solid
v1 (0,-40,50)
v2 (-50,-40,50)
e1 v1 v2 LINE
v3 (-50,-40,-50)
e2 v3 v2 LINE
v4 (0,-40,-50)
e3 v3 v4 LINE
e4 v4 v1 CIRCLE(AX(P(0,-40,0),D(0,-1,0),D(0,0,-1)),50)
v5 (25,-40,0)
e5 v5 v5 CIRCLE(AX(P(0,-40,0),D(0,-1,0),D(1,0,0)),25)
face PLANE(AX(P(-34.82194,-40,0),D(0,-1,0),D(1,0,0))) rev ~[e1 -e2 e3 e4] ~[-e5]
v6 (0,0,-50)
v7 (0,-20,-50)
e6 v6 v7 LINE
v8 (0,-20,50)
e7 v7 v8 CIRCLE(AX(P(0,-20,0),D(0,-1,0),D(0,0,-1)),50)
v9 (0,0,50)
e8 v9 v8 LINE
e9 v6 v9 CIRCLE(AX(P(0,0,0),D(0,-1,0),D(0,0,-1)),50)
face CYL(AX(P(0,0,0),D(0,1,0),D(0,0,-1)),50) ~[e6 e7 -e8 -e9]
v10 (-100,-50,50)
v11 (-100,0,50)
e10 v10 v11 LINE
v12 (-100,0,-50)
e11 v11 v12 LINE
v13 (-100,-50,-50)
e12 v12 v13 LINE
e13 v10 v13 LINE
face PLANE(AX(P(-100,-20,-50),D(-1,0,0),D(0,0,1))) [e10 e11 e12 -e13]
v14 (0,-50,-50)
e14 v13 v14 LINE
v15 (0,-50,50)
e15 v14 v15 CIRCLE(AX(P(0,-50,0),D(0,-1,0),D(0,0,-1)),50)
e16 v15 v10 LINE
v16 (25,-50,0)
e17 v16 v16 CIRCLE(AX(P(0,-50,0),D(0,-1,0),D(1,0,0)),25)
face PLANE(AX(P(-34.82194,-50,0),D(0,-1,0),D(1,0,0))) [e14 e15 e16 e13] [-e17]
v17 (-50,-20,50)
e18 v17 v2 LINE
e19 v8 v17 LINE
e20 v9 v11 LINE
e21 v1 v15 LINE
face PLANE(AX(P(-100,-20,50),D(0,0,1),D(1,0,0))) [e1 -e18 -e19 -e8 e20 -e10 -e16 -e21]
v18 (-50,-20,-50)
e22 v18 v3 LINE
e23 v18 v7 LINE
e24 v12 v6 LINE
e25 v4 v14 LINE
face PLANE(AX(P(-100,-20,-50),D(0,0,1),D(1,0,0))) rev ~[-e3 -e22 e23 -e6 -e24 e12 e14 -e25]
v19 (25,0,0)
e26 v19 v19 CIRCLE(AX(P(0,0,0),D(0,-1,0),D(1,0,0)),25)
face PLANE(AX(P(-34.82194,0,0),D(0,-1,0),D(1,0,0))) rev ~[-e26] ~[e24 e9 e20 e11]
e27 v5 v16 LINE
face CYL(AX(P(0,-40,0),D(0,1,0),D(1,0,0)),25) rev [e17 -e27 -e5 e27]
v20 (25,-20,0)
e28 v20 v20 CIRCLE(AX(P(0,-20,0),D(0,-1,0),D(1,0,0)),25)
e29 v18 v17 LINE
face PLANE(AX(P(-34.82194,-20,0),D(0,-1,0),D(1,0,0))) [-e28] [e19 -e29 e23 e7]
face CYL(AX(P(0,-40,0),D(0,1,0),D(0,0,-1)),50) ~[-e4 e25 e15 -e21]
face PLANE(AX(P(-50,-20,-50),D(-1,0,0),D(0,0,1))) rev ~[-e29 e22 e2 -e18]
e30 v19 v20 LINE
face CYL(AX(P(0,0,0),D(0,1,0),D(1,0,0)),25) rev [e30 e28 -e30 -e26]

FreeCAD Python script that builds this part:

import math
import FreeCAD as App
import Part
import Sketcher

V = App.Vector
Q = App.Units.Quantity


def add_polygon(sketch, points):
    """Adds a closed chain of lines whose ends are joined by coincident constraints."""
    first, n = sketch.GeometryCount, len(points)
    for a, b in zip(points, points[1:] + points[:1]):
        sketch.addGeometry(Part.LineSegment(App.Vector(*a, 0), App.Vector(*b, 0)), False)
    for i in range(n):
        sketch.addConstraint(Sketcher.Constraint("Coincident", first + i, 2, first + (i + 1) % n, 1))

doc = App.newDocument("Part")
body = doc.addObject("PartDesign::Body", "Body")

# Sketch on XZ plane
sketch1 = body.newObject("Sketcher::SketchObject", "Sketch")
sketch1.AttachmentSupport = (doc.getObject("XZ_Plane"), [""])
sketch1.MapMode = "FlatFace"
sketch1.addGeometry([
    Part.LineSegment(V(-100, -50, 0), V(0, -50, 0)),  # 0
    Part.ArcOfCircle(Part.Circle(V(0, 0, 0), V(0, 0, 1), 50), math.radians(-90), math.radians(90)),  # 1
    Part.LineSegment(V(0, 50, 0), V(-100, 50, 0)),  # 2
    Part.LineSegment(V(-100, 50, 0), V(-100, -50, 0)),  # 3
    Part.Circle(V(0, 0, 0), V(0, 0, 1), 25),  # 4
], False)
sketch1.addConstraint([
    Sketcher.Constraint("Tangent", 0, 2, 1, 1),
    Sketcher.Constraint("Tangent", 1, 2, 2, 1),
    Sketcher.Constraint("Coincident", 2, 2, 3, 1),
    Sketcher.Constraint("Coincident", 3, 2, 0, 1),
    Sketcher.Constraint("Horizontal", 0),
    Sketcher.Constraint("Horizontal", 2),
    Sketcher.Constraint("Vertical", 3),
    Sketcher.Constraint("Coincident", 1, 3, -1, 1),
    Sketcher.Constraint("Coincident", 4, 3, -1, 1),
    Sketcher.Constraint("Equal", 2, 3),
    Sketcher.Constraint("Diameter", 4, Q("50 mm")),
    Sketcher.Constraint("Radius", 1, Q("50 mm")),
])
pad1 = body.newObject("PartDesign::Pad", "Pad")
pad1.Profile = sketch1
pad1.Length = 20
body2 = doc.addObject("PartDesign::Body", "Body001")

# Sketch on XZ plane
sketch2 = body2.newObject("Sketcher::SketchObject", "Sketch001")
sketch2.AttachmentSupport = (doc.getObject("XZ_Plane001"), [""])
sketch2.MapMode = "FlatFace"
sketch2.AttachmentOffset = App.Placement(V(0, 0, 40), App.Rotation())
sketch2.addGeometry([
    Part.LineSegment(V(-100, 50, 0), V(-100, -50, 0)),  # 0
    Part.LineSegment(V(-100, -50, 0), V(0, -50, 0)),  # 1
    Part.ArcOfCircle(Part.Circle(V(0, 0, 0), V(0, 0, 1), 50), math.radians(-90), math.radians(90)),  # 2
    Part.LineSegment(V(0, 50, 0), V(-100, 50, 0)),  # 3
    Part.Circle(V(0, 0, 0), V(0, 0, 1), 25),  # 4
], False)
sketch2.addConstraint([
    Sketcher.Constraint("Coincident", 0, 2, 1, 1),
    Sketcher.Constraint("Tangent", 1, 2, 2, 1),
    Sketcher.Constraint("Tangent", 2, 2, 3, 1),
    Sketcher.Constraint("Coincident", 3, 2, 0, 1),
    Sketcher.Constraint("Vertical", 0),
    Sketcher.Constraint("Horizontal", 1),
    Sketcher.Constraint("Horizontal", 3),
    Sketcher.Constraint("Coincident", 2, 3, -1, 1),
    Sketcher.Constraint("Coincident", 4, 3, -1, 1),
    Sketcher.Constraint("Equal", 3, 0),
    Sketcher.Constraint("Diameter", 4, Q("50 mm")),
    Sketcher.Constraint("Radius", 2, Q("50 mm")),
])
pad2 = body2.newObject("PartDesign::Pad", "Pad001")
pad2.Profile = sketch2
pad2.Length = 10
body.AllowCompound = True
doc.recompute()

boolean = body.newObject("PartDesign::Boolean", "Boolean")
boolean.Type = "Fuse"
boolean.addObjects([body2])

# Sketch on XZ plane
sketch3 = body.newObject("Sketcher::SketchObject", "Sketch002")
sketch3.AttachmentSupport = (doc.getObject("XZ_Plane"), [""])
sketch3.MapMode = "FlatFace"
sketch3.AttachmentOffset = App.Placement(V(0, 0, 20), App.Rotation())
add_polygon(sketch3, [(-100, 50), (-100, -50), (-50, -50), (-50, 50)])  # lines 0-3
sketch3.addConstraint([
    Sketcher.Constraint("Vertical", 0),
    Sketcher.Constraint("Horizontal", 1),
    Sketcher.Constraint("Vertical", 2),
    Sketcher.Constraint("Horizontal", 3),
    Sketcher.Constraint("DistanceX", 1, 1, 1, 2, Q("50 mm")),
    Sketcher.Constraint("DistanceY", 0, 2, 0, 1, Q("100 mm")),
    Sketcher.Constraint("DistanceX", 0, 2, -1, 1, Q("100 mm")),
    Sketcher.Constraint("DistanceY", 0, 2, -1, 1, Q("50 mm")),
])
pad3 = body.newObject("PartDesign::Pad", "Pad002")
pad3.Profile = sketch3
pad3.Type = "UpToLast"

doc.recompute()
